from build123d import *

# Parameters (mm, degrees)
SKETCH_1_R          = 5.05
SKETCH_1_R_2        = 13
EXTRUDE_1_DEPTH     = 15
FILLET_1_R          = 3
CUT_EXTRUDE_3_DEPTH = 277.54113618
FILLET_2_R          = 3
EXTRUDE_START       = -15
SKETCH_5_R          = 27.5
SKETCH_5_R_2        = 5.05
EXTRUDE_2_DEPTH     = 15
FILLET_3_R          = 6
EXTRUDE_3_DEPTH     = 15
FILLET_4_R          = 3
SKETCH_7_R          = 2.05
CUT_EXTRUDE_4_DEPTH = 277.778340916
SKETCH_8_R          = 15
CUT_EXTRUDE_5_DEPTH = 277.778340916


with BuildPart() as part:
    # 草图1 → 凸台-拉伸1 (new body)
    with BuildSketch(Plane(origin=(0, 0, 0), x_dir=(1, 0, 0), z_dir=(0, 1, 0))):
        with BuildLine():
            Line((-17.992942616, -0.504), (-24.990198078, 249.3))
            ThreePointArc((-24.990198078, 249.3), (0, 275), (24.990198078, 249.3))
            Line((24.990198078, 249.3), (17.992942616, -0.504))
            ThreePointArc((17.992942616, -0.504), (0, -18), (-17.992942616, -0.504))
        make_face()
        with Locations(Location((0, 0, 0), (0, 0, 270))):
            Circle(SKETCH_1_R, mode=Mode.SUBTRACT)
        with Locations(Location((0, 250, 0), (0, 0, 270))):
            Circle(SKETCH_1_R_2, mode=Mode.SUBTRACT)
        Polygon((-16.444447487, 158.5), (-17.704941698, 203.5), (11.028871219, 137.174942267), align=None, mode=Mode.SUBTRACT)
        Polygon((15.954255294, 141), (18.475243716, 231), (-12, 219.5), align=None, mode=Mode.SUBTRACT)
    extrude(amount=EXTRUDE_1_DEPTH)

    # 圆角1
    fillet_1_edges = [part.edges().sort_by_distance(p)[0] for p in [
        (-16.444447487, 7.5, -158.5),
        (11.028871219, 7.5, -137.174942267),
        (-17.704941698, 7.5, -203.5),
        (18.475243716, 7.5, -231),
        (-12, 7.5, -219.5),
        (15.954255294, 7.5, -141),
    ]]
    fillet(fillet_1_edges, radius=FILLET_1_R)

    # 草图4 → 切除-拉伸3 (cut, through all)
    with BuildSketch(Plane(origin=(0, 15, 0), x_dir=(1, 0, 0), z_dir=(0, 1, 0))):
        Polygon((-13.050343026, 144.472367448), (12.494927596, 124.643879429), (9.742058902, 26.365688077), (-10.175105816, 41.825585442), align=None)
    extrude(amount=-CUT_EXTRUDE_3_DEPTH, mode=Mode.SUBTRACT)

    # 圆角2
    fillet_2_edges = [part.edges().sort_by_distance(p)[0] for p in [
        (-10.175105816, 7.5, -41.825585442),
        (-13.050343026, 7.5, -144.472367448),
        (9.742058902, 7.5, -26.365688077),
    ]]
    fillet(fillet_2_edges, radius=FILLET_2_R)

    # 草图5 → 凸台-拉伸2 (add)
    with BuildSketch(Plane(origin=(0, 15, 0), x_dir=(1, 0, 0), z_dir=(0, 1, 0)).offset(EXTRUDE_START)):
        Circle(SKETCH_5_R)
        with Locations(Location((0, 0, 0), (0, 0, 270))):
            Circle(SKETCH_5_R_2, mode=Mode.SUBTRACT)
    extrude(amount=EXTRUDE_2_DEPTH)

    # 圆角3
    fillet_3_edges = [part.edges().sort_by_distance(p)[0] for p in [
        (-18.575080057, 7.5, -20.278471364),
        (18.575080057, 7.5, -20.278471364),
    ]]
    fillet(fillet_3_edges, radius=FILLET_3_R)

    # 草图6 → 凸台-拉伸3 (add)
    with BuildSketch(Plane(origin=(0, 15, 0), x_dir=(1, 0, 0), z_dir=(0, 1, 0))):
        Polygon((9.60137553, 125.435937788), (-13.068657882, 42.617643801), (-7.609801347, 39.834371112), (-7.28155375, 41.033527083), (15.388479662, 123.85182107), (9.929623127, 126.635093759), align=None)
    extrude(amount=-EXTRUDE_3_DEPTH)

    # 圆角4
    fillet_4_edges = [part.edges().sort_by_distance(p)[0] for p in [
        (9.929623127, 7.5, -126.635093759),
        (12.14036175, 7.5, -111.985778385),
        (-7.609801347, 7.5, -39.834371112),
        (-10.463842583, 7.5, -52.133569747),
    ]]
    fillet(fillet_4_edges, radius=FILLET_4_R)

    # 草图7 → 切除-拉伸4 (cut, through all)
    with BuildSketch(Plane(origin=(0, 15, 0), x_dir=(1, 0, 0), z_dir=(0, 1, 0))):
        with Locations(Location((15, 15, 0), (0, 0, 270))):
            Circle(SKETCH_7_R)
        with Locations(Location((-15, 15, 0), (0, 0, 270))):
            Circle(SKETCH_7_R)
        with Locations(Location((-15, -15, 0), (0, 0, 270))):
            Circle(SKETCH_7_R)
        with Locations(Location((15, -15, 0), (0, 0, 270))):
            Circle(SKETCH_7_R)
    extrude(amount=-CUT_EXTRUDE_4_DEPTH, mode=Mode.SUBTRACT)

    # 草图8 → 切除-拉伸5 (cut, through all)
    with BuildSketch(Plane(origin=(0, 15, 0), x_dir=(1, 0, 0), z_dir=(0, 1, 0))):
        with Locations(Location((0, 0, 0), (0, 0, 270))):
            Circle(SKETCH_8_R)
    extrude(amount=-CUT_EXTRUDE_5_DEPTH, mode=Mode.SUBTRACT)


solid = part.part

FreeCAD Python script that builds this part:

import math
import FreeCAD as App
import Part
import Sketcher
from FreeCAD import Vector
Q = App.Units.Quantity


def edges_at(feature, points):
    """Names of the edges that pass closest to the given points."""
    edges = feature.Shape.Edges
    near = lambda p: min(range(len(edges)), key=lambda i: edges[i].distToShape(Part.Vertex(*p))[0])
    return sorted({f"Edge{near(p) + 1}" for p in points})

doc = App.newDocument("Part")
body = doc.addObject("PartDesign::Body", "Body")

sketch1 = doc.addObject("Sketcher::SketchObject", "Sketch")
body.addObject(sketch1)
sketch1.AttachmentSupport = (doc.XZ_Plane, [""])
sketch1.MapMode = "FlatFace"
sketch1.addGeometry([
    Part.LineSegment(Vector(-25, -249, 0), Vector(-18, 1, 0)),
    Part.ArcOfCircle(Part.Circle(Vector(0, 0, 0), Vector(0, 0, 1), 18), math.radians(2), math.radians(178)),
    Part.LineSegment(Vector(18, 1, 0), Vector(25, -249, 0)),
    Part.ArcOfCircle(Part.Circle(Vector(0, -250, 0), Vector(0, 0, 1), 25), math.radians(178), math.radians(362)),
    Part.Circle(Vector(0, 0, 0), Vector(0, 0, 1), 5),
    Part.LineSegment(Vector(16, -141, 0), Vector(-12, -220, 0)),
    Part.LineSegment(Vector(-12, -220, 0), Vector(18, -231, 0)),
    Part.LineSegment(Vector(18, -231, 0), Vector(16, -141, 0)),
    Part.LineSegment(Vector(-16, -158, 0), Vector(-18, -204, 0)),
    Part.LineSegment(Vector(-18, -204, 0), Vector(11, -137, 0)),
    Part.LineSegment(Vector(11, -137, 0), Vector(-16, -158, 0)),
    Part.Circle(Vector(0, -250, 0), Vector(0, 0, 1), 13),
], False)
sketch1.addConstraint([
    Sketcher.Constraint("Tangent", 0, 2, 1, 2),
    Sketcher.Constraint("Tangent", 1, 1, 2, 1),
    Sketcher.Constraint("Tangent", 2, 2, 3, 2),
    Sketcher.Constraint("Tangent", 3, 1, 0, 1),
    Sketcher.Constraint("Coincident", 5, 2, 6, 1),
    Sketcher.Constraint("Coincident", 6, 2, 7, 1),
    Sketcher.Constraint("Coincident", 7, 2, 5, 1),
    Sketcher.Constraint("Coincident", 8, 2, 9, 1),
    Sketcher.Constraint("Coincident", 9, 2, 10, 1),
    Sketcher.Constraint("Coincident", 10, 2, 8, 1),
    Sketcher.Constraint("Coincident", 1, 3, -1, 1),
    Sketcher.Constraint("Coincident", 4, 3, -1, 1),
    Sketcher.Constraint("Coincident", 11, 3, 3, 3),
    Sketcher.Constraint("PointOnObject", 3, 3, -2),
    Sketcher.Constraint("Parallel", 2, 7),
    Sketcher.Constraint("Parallel", 0, 8),
    Sketcher.Constraint("Diameter", 11, Q("26 mm")),
    Sketcher.Constraint("Radius", 1, Q("18 mm")),
    Sketcher.Constraint("Radius", 3, Q("25 mm")),
    Sketcher.Constraint("Diameter", 4, Q("10.1 mm")),
    Sketcher.Constraint("DistanceY", 3, 3, -1, 1, Q("250 mm")),
    Sketcher.Constraint("DistanceX", 5, 2, -1, 1, Q("12 mm")),
    Sketcher.Constraint("DistanceY", 6, 2, -1, 1, Q("231 mm")),
    Sketcher.Constraint("DistanceY", 7, 2, -1, 1, Q("141 mm")),
    Sketcher.Constraint("DistanceY", 5, 2, 8, 2, Q("16 mm")),
    Sketcher.Constraint("DistanceY", 8, 2, 10, 2, Q("45 mm")),
    Sketcher.Constraint("DistanceY", 5, 2, -1, 1, Q("219.5 mm")),
    Sketcher.Constraint("Distance", 5, Q("83.328809 mm")),
    Sketcher.Constraint("Distance", 10, Q("34.778461 mm")),
    Sketcher.Constraint("DistanceX", 8, 2, -1, 1, Q("17.704942 mm")),
    Sketcher.Constraint("DistanceX", -1, 1, 9, 2, Q("11.028871 mm")),
])
pad1 = doc.addObject("PartDesign::Pad", "Pad")
body.addObject(pad1)
pad1.Profile = sketch1
pad1.Length = 15
pad1.Reversed = True
doc.recompute()

fillet = doc.addObject("PartDesign::Fillet", "Fillet")
body.addObject(fillet)
fillet.Base = (pad1, edges_at(pad1, [
    (-16.444, 7.5, -158.5),
    (11.029, 7.5, -137.175),
    (-17.705, 7.5, -203.5),
    (18.475, 7.5, -231),
    (-12, 7.5, -219.5),
    (15.954, 7.5, -141),
]))
fillet.Radius = 3

sketch2 = doc.addObject("Sketcher::SketchObject", "Sketch001")
body.addObject(sketch2)
sketch2.AttachmentSupport = (doc.XZ_Plane, [""])
sketch2.MapMode = "FlatFace"
sketch2.AttachmentOffset = App.Placement(Vector(0, 0, -15), App.Rotation())
sketch2.addGeometry([
    Part.LineSegment(Vector(12, -125, 0), Vector(-13, -144, 0)),
    Part.LineSegment(Vector(-13, -144, 0), Vector(-10, -42, 0)),
    Part.LineSegment(Vector(-10, -42, 0), Vector(10, -26, 0)),
    Part.LineSegment(Vector(10, -26, 0), Vector(12, -125, 0)),
], False)
sketch2.addConstraint([
    Sketcher.Constraint("Coincident", 0, 2, 1, 1),
    Sketcher.Constraint("Coincident", 1, 2, 2, 1),
    Sketcher.Constraint("Coincident", 2, 2, 3, 1),
    Sketcher.Constraint("Coincident", 3, 2, 0, 1),
    Sketcher.Constraint("Parallel", 0, 2),
    Sketcher.Constraint("DistanceX", 0, 2, 2, 2, Q("22.792402 mm")),
    Sketcher.Constraint("Distance", 2, Q("25.213129 mm")),
    Sketcher.Constraint("Distance", 3, Q("98.316739 mm")),
    Sketcher.Constraint("DistanceX", -1, 1, 2, 2, Q("9.742059 mm")),
    Sketcher.Constraint("DistanceY", 2, 2, -1, 1, Q("26.365688 mm")),
    Sketcher.Constraint("DistanceY", 3, 2, -1, 1, Q("124.643879 mm")),
    Sketcher.Constraint("DistanceY", 0, 2, 2, 2, Q("118.106679 mm")),
])
pocket1 = doc.addObject("PartDesign::Pocket", "Pocket")
body.addObject(pocket1)
pocket1.Profile = sketch2
pocket1.Type = "ThroughAll"
pocket1.Reversed = True
doc.recompute()

fillet2 = doc.addObject("PartDesign::Fillet", "Fillet001")
body.addObject(fillet2)
fillet2.Base = (pocket1, edges_at(pocket1, [(-10.175, 7.5, -41.826), (-13.05, 7.5, -144.472), (9.742, 7.5, -26.366)]))
fillet2.Radius = 3

sketch3 = doc.addObject("Sketcher::SketchObject", "Sketch002")
body.addObject(sketch3)
sketch3.AttachmentSupport = (doc.XZ_Plane, [""])
sketch3.MapMode = "FlatFace"
sketch3.addGeometry([
    Part.Circle(Vector(0, 0, 0), Vector(0, 0, 1), 28),
    Part.Circle(Vector(0, 0, 0), Vector(0, 0, 1), 5),
], False)
sketch3.addConstraint([
    Sketcher.Constraint("Coincident", 0, 3, -1, 1),
    Sketcher.Constraint("Coincident", 1, 3, -1, 1),
    Sketcher.Constraint("Diameter", 0, Q("55 mm")),
    Sketcher.Constraint("Diameter", 1, Q("10.1 mm")),
])
pad2 = doc.addObject("PartDesign::Pad", "Pad001")
body.addObject(pad2)
pad2.Profile = sketch3
pad2.Length = 15
pad2.Reversed = True
doc.recompute()

fillet3 = doc.addObject("PartDesign::Fillet", "Fillet002")
body.addObject(fillet3)
fillet3.Base = (pad2, edges_at(pad2, [(-18.575, 7.5, -20.278), (18.575, 7.5, -20.278)]))
fillet3.Radius = 6

sketch4 = doc.addObject("Sketcher::SketchObject", "Sketch003")
body.addObject(sketch4)
sketch4.AttachmentSupport = (doc.XZ_Plane, [""])
sketch4.MapMode = "FlatFace"
sketch4.AttachmentOffset = App.Placement(Vector(0, 0, -15), App.Rotation())
sketch4.addGeometry([
    Part.LineSegment(Vector(9.6, -125.4, 0), Vector(-13.1, -42.6, 0)),
    Part.LineSegment(Vector(-13.1, -42.6, 0), Vector(-7.6, -39.8, 0)),
    Part.LineSegment(Vector(-7.6, -39.8, 0), Vector(-7.3, -41, 0)),
    Part.LineSegment(Vector(-7.3, -41, 0), Vector(15.4, -123.9, 0)),
    Part.LineSegment(Vector(15.4, -123.9, 0), Vector(9.9, -126.6, 0)),
    Part.LineSegment(Vector(9.9, -126.6, 0), Vector(9.6, -125.4, 0)),
], False)
sketch4.addConstraint([
    Sketcher.Constraint("Coincident", 0, 2, 1, 1),
    Sketcher.Constraint("Coincident", 1, 2, 2, 1),
    Sketcher.Constraint("Coincident", 2, 2, 3, 1),
    Sketcher.Constraint("Coincident", 3, 2, 4, 1),
    Sketcher.Constraint("Coincident", 4, 2, 5, 1),
    Sketcher.Constraint("Coincident", 5, 2, 0, 1),
    Sketcher.Constraint("Parallel", 0, 2),
    Sketcher.Constraint("Parallel", 2, 3),
    Sketcher.Constraint("Parallel", 1, 4),
    Sketcher.Constraint("Parallel", 3, 5),
    Sketcher.Constraint("Equal", 0, 3),
    Sketcher.Constraint("DistanceX", 1, 2, -1, 1, Q("7.609801 mm")),
    Sketcher.Constraint("Distance", 0, Q("85.865012 mm")),
    Sketcher.Constraint("Distance", 2, Q("1.24327 mm")),
    Sketcher.Constraint("DistanceY", 1, 2, -1, 1, Q("39.834371 mm")),
    Sketcher.Constraint("DistanceX", -1, 1, 3, 2, Q("15.38848 mm")),
    Sketcher.Constraint("DistanceX", 2, 2, 5, 2, Q("16.882929 mm")),
    Sketcher.Constraint("DistanceY", 5, 2, 2, 2, Q("84.402411 mm")),
])
pad3 = doc.addObject("PartDesign::Pad", "Pad002")
body.addObject(pad3)
pad3.Profile = sketch4
pad3.Length = 15
doc.recompute()

fillet4 = doc.addObject("PartDesign::Fillet", "Fillet003")
body.addObject(fillet4)
fillet4.Base = (pad3, edges_at(pad3, [
    (9.93, 7.5, -126.635),
    (12.14, 7.5, -111.986),
    (-7.61, 7.5, -39.834),
    (-10.464, 7.5, -52.134),
]))
fillet4.Radius = 3

sketch5 = doc.addObject("Sketcher::SketchObject", "Sketch004")
body.addObject(sketch5)
sketch5.AttachmentSupport = (doc.XZ_Plane, [""])
sketch5.MapMode = "FlatFace"
sketch5.AttachmentOffset = App.Placement(Vector(0, 0, -15), App.Rotation())
sketch5.addGeometry([
    Part.Circle(Vector(15, -15, 0), Vector(0, 0, 1), 2),
    Part.Circle(Vector(-15, -15, 0), Vector(0, 0, 1), 2),
    Part.Circle(Vector(-15, 15, 0), Vector(0, 0, 1), 2),
    Part.Circle(Vector(15, 15, 0), Vector(0, 0, 1), 2),
], False)
sketch5.addConstraint([
    Sketcher.Constraint("Equal", 0, 1),
    Sketcher.Constraint("Equal", 1, 2),
    Sketcher.Constraint("Equal", 2, 3),
    Sketcher.Constraint("Symmetric", 0, 3, 2, 3, -1, 1),
    Sketcher.Constraint("Symmetric", 1, 3, 3, 3, -1, 1),
    Sketcher.Constraint("Symmetric", 0, 3, 1, 3, -2),
    Sketcher.Constraint("Diameter", 0, Q("4.1 mm")),
    Sketcher.Constraint("DistanceX", -1, 1, 0, 3, Q("15 mm")),
    Sketcher.Constraint("DistanceY", 0, 3, -1, 1, Q("15 mm")),
])
pocket2 = doc.addObject("PartDesign::Pocket", "Pocket001")
body.addObject(pocket2)
pocket2.Profile = sketch5
pocket2.Type = "ThroughAll"
pocket2.Reversed = True

sketch6 = doc.addObject("Sketcher::SketchObject", "Sketch005")
body.addObject(sketch6)
sketch6.AttachmentSupport = (doc.XZ_Plane, [""])
sketch6.MapMode = "FlatFace"
sketch6.AttachmentOffset = App.Placement(Vector(0, 0, -15), App.Rotation())
sketch6.addGeometry(Part.Circle(Vector(0, 0, 0), Vector(0, 0, 1), 15), False)
sketch6.addConstraint([
    Sketcher.Constraint("Coincident", 0, 3, -1, 1),
    Sketcher.Constraint("Diameter", 0, Q("30 mm")),
])
pocket3 = doc.addObject("PartDesign::Pocket", "Pocket002")
body.addObject(pocket3)
pocket3.Profile = sketch6
pocket3.Type = "ThroughAll"
pocket3.Reversed = True

doc.recompute()
